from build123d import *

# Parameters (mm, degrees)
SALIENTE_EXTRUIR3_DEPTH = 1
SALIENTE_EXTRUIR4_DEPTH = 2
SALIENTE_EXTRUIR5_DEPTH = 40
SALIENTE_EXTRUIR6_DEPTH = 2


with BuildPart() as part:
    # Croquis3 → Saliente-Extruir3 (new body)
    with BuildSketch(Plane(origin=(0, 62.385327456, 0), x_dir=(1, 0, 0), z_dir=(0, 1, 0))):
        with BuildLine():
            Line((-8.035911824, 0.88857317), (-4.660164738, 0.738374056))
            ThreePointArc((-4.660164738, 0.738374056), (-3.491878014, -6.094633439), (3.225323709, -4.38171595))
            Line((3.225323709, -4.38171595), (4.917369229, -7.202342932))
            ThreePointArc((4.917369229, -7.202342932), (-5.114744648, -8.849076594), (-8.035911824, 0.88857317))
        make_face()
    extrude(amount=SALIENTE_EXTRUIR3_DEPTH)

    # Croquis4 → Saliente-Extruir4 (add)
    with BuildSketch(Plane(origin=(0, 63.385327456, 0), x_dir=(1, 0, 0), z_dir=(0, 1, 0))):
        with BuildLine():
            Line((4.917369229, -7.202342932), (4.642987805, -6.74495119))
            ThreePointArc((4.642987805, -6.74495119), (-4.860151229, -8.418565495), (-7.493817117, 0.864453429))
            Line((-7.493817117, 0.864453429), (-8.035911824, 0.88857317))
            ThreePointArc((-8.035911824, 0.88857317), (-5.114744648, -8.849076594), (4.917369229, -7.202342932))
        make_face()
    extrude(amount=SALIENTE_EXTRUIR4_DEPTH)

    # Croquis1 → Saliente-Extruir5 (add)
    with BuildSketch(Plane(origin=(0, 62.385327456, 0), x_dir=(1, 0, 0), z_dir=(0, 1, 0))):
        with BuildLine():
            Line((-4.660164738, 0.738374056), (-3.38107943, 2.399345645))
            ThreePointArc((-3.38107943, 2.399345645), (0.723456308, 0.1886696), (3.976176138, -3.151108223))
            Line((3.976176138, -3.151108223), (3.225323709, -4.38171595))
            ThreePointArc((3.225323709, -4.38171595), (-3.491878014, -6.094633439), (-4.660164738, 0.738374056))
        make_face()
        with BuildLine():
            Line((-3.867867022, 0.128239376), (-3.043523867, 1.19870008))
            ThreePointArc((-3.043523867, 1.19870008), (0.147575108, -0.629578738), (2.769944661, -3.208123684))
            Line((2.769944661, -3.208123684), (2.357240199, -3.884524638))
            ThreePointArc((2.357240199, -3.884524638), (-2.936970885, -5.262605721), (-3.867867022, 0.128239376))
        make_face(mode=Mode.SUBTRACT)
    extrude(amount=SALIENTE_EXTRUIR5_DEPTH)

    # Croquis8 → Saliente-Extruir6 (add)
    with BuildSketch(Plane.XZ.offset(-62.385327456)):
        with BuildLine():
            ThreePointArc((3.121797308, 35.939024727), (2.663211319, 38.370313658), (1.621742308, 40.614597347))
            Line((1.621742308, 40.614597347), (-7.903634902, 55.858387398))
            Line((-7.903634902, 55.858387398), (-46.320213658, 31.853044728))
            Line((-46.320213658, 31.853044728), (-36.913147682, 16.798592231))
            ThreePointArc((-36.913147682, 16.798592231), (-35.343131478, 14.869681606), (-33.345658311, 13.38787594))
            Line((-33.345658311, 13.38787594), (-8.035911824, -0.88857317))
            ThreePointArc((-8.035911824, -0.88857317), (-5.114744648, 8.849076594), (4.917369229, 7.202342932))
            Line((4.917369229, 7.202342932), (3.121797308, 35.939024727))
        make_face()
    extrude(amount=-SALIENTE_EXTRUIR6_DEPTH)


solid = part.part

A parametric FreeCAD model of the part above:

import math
import FreeCAD as App
import Part
import Sketcher
from FreeCAD import Vector
Q = App.Units.Quantity

doc = App.newDocument("Part")
body = doc.addObject("PartDesign::Body", "Body")

# Sketch on XZ plane
sketch1 = doc.addObject("Sketcher::SketchObject", "Sketch")
body.addObject(sketch1)
sketch1.AttachmentSupport = (doc.XZ_Plane, [""])
sketch1.MapMode = "FlatFace"
sketch1.AttachmentOffset = App.Placement(Vector(0, 0, -62.385327), App.Rotation())
sketch1.addGeometry([
    Part.LineSegment(Vector(-4.7, -0.7, 0), Vector(-8, -0.9, 0)),
    Part.ArcOfCircle(Part.Circle(Vector(-1, 2.3, 0), Vector(0, 0, 1), 7.7), math.radians(39), math.radians(205)),
    Part.LineSegment(Vector(4.9, 7.2, 0), Vector(3.2, 4.4, 0)),
    Part.ArcOfCircle(Part.Circle(Vector(-0.9, 2.1, 0), Vector(0, 0, 1), 4.7), math.radians(28), math.radians(218)),
], False)
sketch1.addConstraint([
    Sketcher.Constraint("Coincident", 0, 2, 1, 2),
    Sketcher.Constraint("Coincident", 1, 1, 2, 1),
    Sketcher.Constraint("Coincident", 2, 2, 3, 1),
    Sketcher.Constraint("Coincident", 3, 2, 0, 1),
    Sketcher.Constraint("Radius", 1, Q("7.7 mm")),
    Sketcher.Constraint("Radius", 3, Q("4.716178 mm")),
    Sketcher.Constraint("DistanceY", 0, 2, 3, 2, Q("0.150199 mm")),
    Sketcher.Constraint("DistanceX", 3, 3, -1, 1, Q("0.923548 mm")),
    Sketcher.Constraint("DistanceY", -1, 1, 3, 3, Q("2.139129 mm")),
    Sketcher.Constraint("DistanceX", 0, 2, -1, 1, Q("8.035912 mm")),
    Sketcher.Constraint("DistanceX", -1, 1, 1, 1, Q("4.917369 mm")),
    Sketcher.Constraint("DistanceY", 1, 3, 1, 1, Q("4.88396 mm")),
    Sketcher.Constraint("DistanceX", 3, 3, 2, 2, Q("4.148872 mm")),
    Sketcher.Constraint("DistanceY", 0, 2, 2, 2, Q("5.270289 mm")),
])
pad1 = doc.addObject("PartDesign::Pad", "Pad")
body.addObject(pad1)
pad1.Profile = sketch1
pad1.Length = 1
pad1.Reversed = True

# Sketch on XZ plane
sketch2 = doc.addObject("Sketcher::SketchObject", "Sketch001")
body.addObject(sketch2)
sketch2.AttachmentSupport = (doc.XZ_Plane, [""])
sketch2.MapMode = "FlatFace"
sketch2.AttachmentOffset = App.Placement(Vector(0, 0, -63.385327), App.Rotation())
sketch2.addGeometry([
    Part.LineSegment(Vector(4.9, 7.2, 0), Vector(4.6, 6.7, 0)),
    Part.ArcOfCircle(Part.Circle(Vector(-1, 2.3, 0), Vector(0, 0, 1), 7.2), math.radians(38), math.radians(206)),
    Part.LineSegment(Vector(-7.5, -0.9, 0), Vector(-8, -0.9, 0)),
    Part.ArcOfCircle(Part.Circle(Vector(-1, 2.3, 0), Vector(0, 0, 1), 7.7), math.radians(39), math.radians(205)),
], False)
sketch2.addConstraint([
    Sketcher.Constraint("Coincident", 0, 2, 1, 1),
    Sketcher.Constraint("Coincident", 1, 2, 2, 1),
    Sketcher.Constraint("Coincident", 2, 2, 3, 2),
    Sketcher.Constraint("Coincident", 3, 1, 0, 1),
    Sketcher.Constraint("Coincident", 3, 3, 1, 3),
    Sketcher.Constraint("Radius", 1, Q("7.2 mm")),
    Sketcher.Constraint("Radius", 3, Q("7.7 mm")),
    Sketcher.Constraint("DistanceX", 2, 2, 0, 2, Q("12.6789 mm")),
    Sketcher.Constraint("Distance", 0, Q("0.533378 mm")),
    Sketcher.Constraint("Distance", 2, Q("0.542631 mm")),
    Sketcher.Constraint("DistanceY", -1, 1, 0, 2, Q("6.744951 mm")),
    Sketcher.Constraint("DistanceX", 2, 2, -1, 1, Q("8.035912 mm")),
    Sketcher.Constraint("DistanceX", -1, 1, 3, 1, Q("4.917369 mm")),
])
pad2 = doc.addObject("PartDesign::Pad", "Pad001")
body.addObject(pad2)
pad2.Profile = sketch2
pad2.Length = 2
pad2.Reversed = True

# Sketch on XZ plane
sketch3 = doc.addObject("Sketcher::SketchObject", "Sketch002")
body.addObject(sketch3)
sketch3.AttachmentSupport = (doc.XZ_Plane, [""])
sketch3.MapMode = "FlatFace"
sketch3.AttachmentOffset = App.Placement(Vector(0, 0, -62.385327), App.Rotation())
sketch3.addGeometry([
    Part.LineSegment(Vector(-3.4, -2.4, 0), Vector(-4.7, -0.7, 0)),  # 0
    Part.ArcOfCircle(Part.Circle(Vector(-0.9, 2.1, 0), Vector(0, 0, 1), 4.7), math.radians(28), math.radians(218)),  # 1
    Part.LineSegment(Vector(3.2, 4.4, 0), Vector(4, 3.2, 0)),  # 2
    Part.ArcOfCircle(Part.Circle(Vector(-8.5, 12.1, 0), Vector(0, 0, 1), 15.4), math.radians(-70), math.radians(-36)),  # 3
    Part.LineSegment(Vector(-3.9, -0.1, 0), Vector(-3, -1.2, 0)),  # 4
    Part.ArcOfCircle(Part.Circle(Vector(-8.5, 12.1, 0), Vector(0, 0, 1), 14.4), math.radians(-68), math.radians(-38)),  # 5
    Part.LineSegment(Vector(2.8, 3.2, 0), Vector(2.4, 3.9, 0)),  # 6
    Part.ArcOfCircle(Part.Circle(Vector(-0.9, 2.1, 0), Vector(0, 0, 1), 3.7), math.radians(28), math.radians(218)),  # 7
], False)
sketch3.addConstraint([
    Sketcher.Constraint("Tangent", 0, 2, 1, 2),
    Sketcher.Constraint("Coincident", 1, 1, 2, 1),
    Sketcher.Constraint("Coincident", 2, 2, 3, 2),
    Sketcher.Constraint("Coincident", 3, 1, 0, 1),
    Sketcher.Constraint("Coincident", 4, 2, 5, 1),
    Sketcher.Constraint("Coincident", 5, 2, 6, 1),
    Sketcher.Constraint("Coincident", 6, 2, 7, 1),
    Sketcher.Constraint("Tangent", 7, 2, 4, 1),
    Sketcher.Constraint("Coincident", 5, 3, 3, 3),
    Sketcher.Constraint("Coincident", 7, 3, 1, 3),
    Sketcher.Constraint("Parallel", 0, 4),
    Sketcher.Constraint("Parallel", 2, 6),
    Sketcher.Constraint("Radius", 3, Q("15.366701 mm")),
    Sketcher.Constraint("Radius", 5, Q("14.366701 mm")),
    Sketcher.Constraint("Radius", 1, Q("4.716178 mm")),
    Sketcher.Constraint("Radius", 7, Q("3.716178 mm")),
    Sketcher.Constraint("Distance", 0, Q("2.096398 mm")),
    Sketcher.Constraint("DistanceY", 4, 2, -1, 1, Q("1.1987 mm")),
    Sketcher.Constraint("DistanceX", 5, 3, 2, 2, Q("12.507398 mm")),
    Sketcher.Constraint("DistanceX", 4, 2, 2, 2, Q("7.0197 mm")),
    Sketcher.Constraint("DistanceY", 5, 2, 6, 2, Q("0.676401 mm")),
    Sketcher.Constraint("DistanceX", 1, 3, -1, 1, Q("0.923548 mm")),
    Sketcher.Constraint("DistanceY", -1, 1, 1, 3, Q("2.139129 mm")),
    Sketcher.Constraint("DistanceX", -1, 1, 6, 2, Q("2.35724 mm")),
])
pad3 = doc.addObject("PartDesign::Pad", "Pad002")
body.addObject(pad3)
pad3.Profile = sketch3
pad3.Length = 40
pad3.Reversed = True

# Sketch on XZ plane
sketch4 = doc.addObject("Sketcher::SketchObject", "Sketch003")
body.addObject(sketch4)
sketch4.AttachmentSupport = (doc.XZ_Plane, [""])
sketch4.MapMode = "FlatFace"
sketch4.AttachmentOffset = App.Placement(Vector(0, 0, -62.385327), App.Rotation())
sketch4.addGeometry([
    Part.ArcOfCircle(Part.Circle(Vector(-6.9, 35.3, 0), Vector(0, 0, 1), 10), math.radians(4), math.radians(32)),  # 0
    Part.LineSegment(Vector(1.6, 40.6, 0), Vector(-7.9, 55.9, 0)),  # 1
    Part.LineSegment(Vector(-7.9, 55.9, 0), Vector(-46.3, 31.9, 0)),  # 2
    Part.LineSegment(Vector(-46.3, 31.9, 0), Vector(-36.9, 16.8, 0)),  # 3
    Part.ArcOfCircle(Part.Circle(Vector(-28.4, 22.1, 0), Vector(0, 0, 1), 10), math.radians(-148), math.radians(-119)),  # 4
    Part.LineSegment(Vector(-33.3, 13.4, 0), Vector(-8, -0.9, 0)),  # 5
    Part.ArcOfCircle(Part.Circle(Vector(-1, 2.3, 0), Vector(0, 0, 1), 7.7), math.radians(39), math.radians(205)),  # 6
    Part.LineSegment(Vector(4.9, 7.2, 0), Vector(3.1, 35.9, 0)),  # 7
], False)
sketch4.addConstraint([
    Sketcher.Constraint("Tangent", 0, 2, 1, 1),
    Sketcher.Constraint("Coincident", 1, 2, 2, 1),
    Sketcher.Constraint("Coincident", 2, 2, 3, 1),
    Sketcher.Constraint("Tangent", 3, 2, 4, 1),
    Sketcher.Constraint("Tangent", 4, 2, 5, 1),
    Sketcher.Constraint("Coincident", 5, 2, 6, 2),
    Sketcher.Constraint("Coincident", 6, 1, 7, 1),
    Sketcher.Constraint("Tangent", 7, 2, 0, 1),
    Sketcher.Constraint("Equal", 0, 4),
    Sketcher.Constraint("Perpendicular", 1, 2),
    Sketcher.Constraint("Perpendicular", 2, 3),
    Sketcher.Constraint("Radius", 0, Q("10 mm")),
    Sketcher.Constraint("Radius", 6, Q("7.7 mm")),
    Sketcher.Constraint("Angle", 1, Q("122 deg")),
    Sketcher.Constraint("Distance", 2, Q("45.3 mm")),
    Sketcher.Constraint("DistanceY", 6, 3, 4, 3, Q("19.779402 mm")),
    Sketcher.Constraint("Distance", 1, Q("17.975148 mm")),
    Sketcher.Constraint("DistanceX", 0, 3, -1, 1, Q("6.858739 mm")),
    Sketcher.Constraint("DistanceX", 4, 2, -1, 1, Q("33.345658 mm")),
    Sketcher.Constraint("DistanceX", 5, 2, -1, 1, Q("8.035912 mm")),
    Sketcher.Constraint("DistanceX", -1, 1, 6, 1, Q("4.917369 mm")),
    Sketcher.Constraint("DistanceX", 4, 3, 0, 3, Q("21.573928 mm")),
    Sketcher.Constraint("DistanceY", -1, 1, 0, 3, Q("35.315405 mm")),
])
pad4 = doc.addObject("PartDesign::Pad", "Pad003")
body.addObject(pad4)
pad4.Profile = sketch4
pad4.Length = 2
pad4.Reversed = True

doc.recompute()
